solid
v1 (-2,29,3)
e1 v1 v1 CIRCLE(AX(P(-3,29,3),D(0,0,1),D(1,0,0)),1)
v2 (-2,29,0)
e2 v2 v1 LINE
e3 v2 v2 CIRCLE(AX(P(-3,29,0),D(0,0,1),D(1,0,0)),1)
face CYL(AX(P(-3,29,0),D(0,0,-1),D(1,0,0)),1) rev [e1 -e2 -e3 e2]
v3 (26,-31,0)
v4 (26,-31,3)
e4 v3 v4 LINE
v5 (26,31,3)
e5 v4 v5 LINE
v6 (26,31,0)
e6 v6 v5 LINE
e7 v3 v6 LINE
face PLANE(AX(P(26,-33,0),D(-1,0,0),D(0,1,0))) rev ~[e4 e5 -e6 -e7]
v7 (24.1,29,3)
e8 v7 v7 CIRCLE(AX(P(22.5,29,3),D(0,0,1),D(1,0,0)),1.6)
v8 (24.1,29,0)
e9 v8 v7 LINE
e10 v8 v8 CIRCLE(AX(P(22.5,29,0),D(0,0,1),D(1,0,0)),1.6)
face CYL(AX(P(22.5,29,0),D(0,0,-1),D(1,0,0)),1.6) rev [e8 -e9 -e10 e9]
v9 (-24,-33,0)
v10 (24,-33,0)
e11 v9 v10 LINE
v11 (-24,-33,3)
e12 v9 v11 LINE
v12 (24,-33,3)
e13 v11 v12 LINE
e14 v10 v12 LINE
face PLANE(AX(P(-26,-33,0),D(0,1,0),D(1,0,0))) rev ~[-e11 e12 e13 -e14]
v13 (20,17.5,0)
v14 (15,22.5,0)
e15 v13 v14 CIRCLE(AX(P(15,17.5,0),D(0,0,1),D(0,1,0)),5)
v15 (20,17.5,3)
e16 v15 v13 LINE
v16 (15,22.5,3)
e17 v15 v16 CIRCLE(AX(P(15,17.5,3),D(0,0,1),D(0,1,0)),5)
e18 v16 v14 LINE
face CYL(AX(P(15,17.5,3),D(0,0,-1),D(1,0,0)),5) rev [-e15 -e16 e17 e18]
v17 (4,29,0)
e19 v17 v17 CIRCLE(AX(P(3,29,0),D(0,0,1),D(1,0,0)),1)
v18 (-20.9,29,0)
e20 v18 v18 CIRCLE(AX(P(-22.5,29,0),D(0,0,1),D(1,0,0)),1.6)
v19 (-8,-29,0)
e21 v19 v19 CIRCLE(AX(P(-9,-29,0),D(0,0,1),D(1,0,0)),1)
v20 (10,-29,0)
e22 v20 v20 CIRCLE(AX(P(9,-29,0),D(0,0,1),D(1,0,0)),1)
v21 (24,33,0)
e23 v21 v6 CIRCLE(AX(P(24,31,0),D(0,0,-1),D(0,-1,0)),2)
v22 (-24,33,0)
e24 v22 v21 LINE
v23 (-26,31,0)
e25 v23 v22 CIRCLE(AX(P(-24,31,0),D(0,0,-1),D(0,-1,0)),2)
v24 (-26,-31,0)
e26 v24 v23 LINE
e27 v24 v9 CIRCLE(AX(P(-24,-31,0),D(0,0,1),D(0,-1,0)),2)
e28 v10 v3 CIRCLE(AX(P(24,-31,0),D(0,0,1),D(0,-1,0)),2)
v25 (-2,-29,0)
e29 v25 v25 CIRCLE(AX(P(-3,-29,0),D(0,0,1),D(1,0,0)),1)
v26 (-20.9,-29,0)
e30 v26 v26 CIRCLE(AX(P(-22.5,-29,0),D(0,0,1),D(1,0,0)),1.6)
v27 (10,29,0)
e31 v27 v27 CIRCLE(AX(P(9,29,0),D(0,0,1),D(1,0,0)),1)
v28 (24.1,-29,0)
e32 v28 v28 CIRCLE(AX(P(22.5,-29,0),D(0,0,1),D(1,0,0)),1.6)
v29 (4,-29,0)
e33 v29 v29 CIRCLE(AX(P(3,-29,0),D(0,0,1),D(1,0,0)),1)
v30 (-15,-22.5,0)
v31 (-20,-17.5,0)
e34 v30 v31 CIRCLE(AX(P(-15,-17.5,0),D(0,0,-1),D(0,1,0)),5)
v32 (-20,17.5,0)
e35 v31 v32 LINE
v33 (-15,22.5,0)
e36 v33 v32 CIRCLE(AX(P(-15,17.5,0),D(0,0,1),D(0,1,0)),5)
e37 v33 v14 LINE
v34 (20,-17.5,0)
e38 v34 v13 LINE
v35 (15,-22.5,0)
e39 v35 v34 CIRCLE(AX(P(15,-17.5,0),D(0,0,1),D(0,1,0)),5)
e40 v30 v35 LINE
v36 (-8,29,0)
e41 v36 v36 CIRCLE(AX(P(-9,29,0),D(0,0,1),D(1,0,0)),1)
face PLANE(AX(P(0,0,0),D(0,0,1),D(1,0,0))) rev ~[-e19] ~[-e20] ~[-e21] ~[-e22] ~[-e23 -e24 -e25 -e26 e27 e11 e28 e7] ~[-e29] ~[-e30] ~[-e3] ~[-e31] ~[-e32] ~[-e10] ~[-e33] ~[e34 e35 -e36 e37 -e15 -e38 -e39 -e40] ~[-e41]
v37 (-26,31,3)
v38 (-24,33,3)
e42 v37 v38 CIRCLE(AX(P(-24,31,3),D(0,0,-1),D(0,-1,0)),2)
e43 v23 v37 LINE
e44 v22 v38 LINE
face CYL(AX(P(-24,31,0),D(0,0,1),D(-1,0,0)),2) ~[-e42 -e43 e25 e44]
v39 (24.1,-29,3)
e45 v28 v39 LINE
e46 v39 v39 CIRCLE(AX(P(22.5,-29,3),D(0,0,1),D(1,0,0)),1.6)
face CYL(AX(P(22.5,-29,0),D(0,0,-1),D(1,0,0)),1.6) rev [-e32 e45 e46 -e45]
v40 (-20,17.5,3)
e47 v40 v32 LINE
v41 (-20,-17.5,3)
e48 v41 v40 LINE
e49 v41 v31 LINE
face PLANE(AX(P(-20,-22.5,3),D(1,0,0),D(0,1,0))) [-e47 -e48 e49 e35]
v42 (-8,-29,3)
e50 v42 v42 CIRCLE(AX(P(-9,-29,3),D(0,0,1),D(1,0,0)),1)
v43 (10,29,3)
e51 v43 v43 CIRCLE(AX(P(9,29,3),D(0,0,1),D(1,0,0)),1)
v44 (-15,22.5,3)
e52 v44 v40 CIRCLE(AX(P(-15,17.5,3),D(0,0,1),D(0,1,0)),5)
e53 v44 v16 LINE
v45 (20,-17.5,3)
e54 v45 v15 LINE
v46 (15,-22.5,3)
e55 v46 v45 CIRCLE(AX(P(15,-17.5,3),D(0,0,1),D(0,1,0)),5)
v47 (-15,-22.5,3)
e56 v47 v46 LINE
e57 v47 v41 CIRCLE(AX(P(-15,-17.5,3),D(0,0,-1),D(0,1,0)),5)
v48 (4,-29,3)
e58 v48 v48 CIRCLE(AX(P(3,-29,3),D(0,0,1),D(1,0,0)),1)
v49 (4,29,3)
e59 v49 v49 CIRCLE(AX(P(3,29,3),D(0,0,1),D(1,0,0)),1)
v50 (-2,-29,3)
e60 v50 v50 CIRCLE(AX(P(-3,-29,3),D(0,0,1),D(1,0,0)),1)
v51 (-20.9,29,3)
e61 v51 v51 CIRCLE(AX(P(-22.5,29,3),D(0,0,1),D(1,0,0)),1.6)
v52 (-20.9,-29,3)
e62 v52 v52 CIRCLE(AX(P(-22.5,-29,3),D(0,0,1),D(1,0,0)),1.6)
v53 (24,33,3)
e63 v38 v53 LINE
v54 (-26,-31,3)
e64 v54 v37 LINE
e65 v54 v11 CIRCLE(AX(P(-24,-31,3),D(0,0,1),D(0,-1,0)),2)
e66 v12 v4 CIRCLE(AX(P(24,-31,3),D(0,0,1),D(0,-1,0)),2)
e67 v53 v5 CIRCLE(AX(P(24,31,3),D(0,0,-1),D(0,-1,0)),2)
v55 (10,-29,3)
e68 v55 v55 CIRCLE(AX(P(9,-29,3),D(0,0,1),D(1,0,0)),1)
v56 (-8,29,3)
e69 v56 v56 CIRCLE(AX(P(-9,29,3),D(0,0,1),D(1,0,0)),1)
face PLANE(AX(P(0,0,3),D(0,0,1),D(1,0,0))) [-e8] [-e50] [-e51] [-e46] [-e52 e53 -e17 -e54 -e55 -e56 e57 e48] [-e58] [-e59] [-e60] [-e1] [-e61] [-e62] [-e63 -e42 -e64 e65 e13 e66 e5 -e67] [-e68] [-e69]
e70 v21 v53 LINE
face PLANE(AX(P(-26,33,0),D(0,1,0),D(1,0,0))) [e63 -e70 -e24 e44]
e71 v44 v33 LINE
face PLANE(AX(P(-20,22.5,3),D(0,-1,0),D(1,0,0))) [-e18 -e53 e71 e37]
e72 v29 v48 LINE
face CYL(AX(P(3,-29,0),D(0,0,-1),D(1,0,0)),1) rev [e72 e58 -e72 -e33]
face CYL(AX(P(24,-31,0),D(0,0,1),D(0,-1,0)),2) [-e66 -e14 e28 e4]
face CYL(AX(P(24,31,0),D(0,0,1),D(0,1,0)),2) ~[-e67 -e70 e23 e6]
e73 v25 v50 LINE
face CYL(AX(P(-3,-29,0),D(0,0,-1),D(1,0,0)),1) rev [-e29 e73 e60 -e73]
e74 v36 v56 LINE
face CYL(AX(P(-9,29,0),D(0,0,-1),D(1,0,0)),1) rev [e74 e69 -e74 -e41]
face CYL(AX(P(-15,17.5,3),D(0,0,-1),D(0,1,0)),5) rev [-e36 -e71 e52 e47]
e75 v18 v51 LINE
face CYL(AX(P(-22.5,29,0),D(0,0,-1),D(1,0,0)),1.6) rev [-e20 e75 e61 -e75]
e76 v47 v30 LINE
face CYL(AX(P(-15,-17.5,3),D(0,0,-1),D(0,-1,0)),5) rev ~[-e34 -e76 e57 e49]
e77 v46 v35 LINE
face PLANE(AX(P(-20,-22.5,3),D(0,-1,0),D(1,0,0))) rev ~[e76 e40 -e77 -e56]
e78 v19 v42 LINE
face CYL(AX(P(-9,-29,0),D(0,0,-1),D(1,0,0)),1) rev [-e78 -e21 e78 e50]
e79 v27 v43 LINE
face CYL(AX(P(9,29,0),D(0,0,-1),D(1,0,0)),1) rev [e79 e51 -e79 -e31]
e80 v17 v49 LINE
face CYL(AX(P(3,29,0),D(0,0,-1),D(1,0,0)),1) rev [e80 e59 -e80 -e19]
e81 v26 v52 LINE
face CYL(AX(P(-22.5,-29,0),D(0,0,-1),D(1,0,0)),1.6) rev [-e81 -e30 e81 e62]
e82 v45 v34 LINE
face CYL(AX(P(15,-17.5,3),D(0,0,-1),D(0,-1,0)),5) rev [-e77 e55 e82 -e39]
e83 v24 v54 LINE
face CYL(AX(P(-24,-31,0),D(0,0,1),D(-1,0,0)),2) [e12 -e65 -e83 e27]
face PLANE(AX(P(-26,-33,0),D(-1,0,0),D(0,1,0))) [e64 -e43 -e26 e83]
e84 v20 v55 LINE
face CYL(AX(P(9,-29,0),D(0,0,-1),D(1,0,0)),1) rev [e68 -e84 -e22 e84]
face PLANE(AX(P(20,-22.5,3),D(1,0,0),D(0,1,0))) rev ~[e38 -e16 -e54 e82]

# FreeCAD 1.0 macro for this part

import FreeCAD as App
import Part
import Sketcher

V = App.Vector


def edges_at(feature, points):
    """Names of the edges that pass closest to the given points."""
    edges = feature.Shape.Edges
    near = lambda p: min(range(len(edges)), key=lambda i: edges[i].distToShape(Part.Vertex(*p))[0])
    return sorted({f"Edge{near(p) + 1}" for p in points})

doc = App.newDocument("Part")
body = doc.addObject("PartDesign::Body", "Body")

sketch1 = body.newObject("Sketcher::SketchObject", "Sketch")
sketch1.AttachmentSupport = (doc.getObject("XY_Plane"), [""])
sketch1.MapMode = "FlatFace"
sketch1.addGeometry([
    Part.LineSegment(V(-26, 33, 0), V(-26, -33, 0)),
    Part.LineSegment(V(-26, -33, 0), V(26, -33, 0)),
    Part.LineSegment(V(26, -33, 0), V(26, 33, 0)),
    Part.LineSegment(V(26, 33, 0), V(-26, 33, 0)),
    Part.Circle(V(-22.5, -29, 0), V(0, 0, 1), 1.6),
    Part.Circle(V(-9, -29, 0), V(0, 0, 1), 1),
    Part.Circle(V(-3, -29, 0), V(0, 0, 1), 1),
    Part.Circle(V(3, -29, 0), V(0, 0, 1), 1),
    Part.Circle(V(9, -29, 0), V(0, 0, 1), 1),
    Part.Circle(V(22.5, -29, 0), V(0, 0, 1), 1.6),
    Part.Circle(V(-22.5, 29, 0), V(0, 0, 1), 1.6),
    Part.Circle(V(-9, 29, 0), V(0, 0, 1), 1),
    Part.Circle(V(-3, 29, 0), V(0, 0, 1), 1),
    Part.Circle(V(3, 29, 0), V(0, 0, 1), 1),
    Part.Circle(V(9, 29, 0), V(0, 0, 1), 1),
    Part.Circle(V(22.5, 29, 0), V(0, 0, 1), 1.6),
], False)
sketch1.addConstraint([
    Sketcher.Constraint("Coincident", 0, 2, 1, 1),
    Sketcher.Constraint("Coincident", 1, 2, 2, 1),
    Sketcher.Constraint("Coincident", 2, 2, 3, 1),
    Sketcher.Constraint("Coincident", 3, 2, 0, 1),
    Sketcher.Constraint("Vertical", 0),
    Sketcher.Constraint("Horizontal", 1),
    Sketcher.Constraint("Vertical", 2),
    Sketcher.Constraint("Horizontal", 3),
    Sketcher.Constraint("Equal", 5, 6),
    Sketcher.Constraint("Equal", 6, 7),
    Sketcher.Constraint("Equal", 7, 8),
    Sketcher.Constraint("Equal", 4, 9),
    Sketcher.Constraint("Equal", 9, 10),
    Sketcher.Constraint("Equal", 8, 11),
    Sketcher.Constraint("Equal", 11, 12),
    Sketcher.Constraint("Equal", 12, 13),
    Sketcher.Constraint("Equal", 13, 14),
    Sketcher.Constraint("Equal", 10, 15),
    Sketcher.Constraint("Symmetric", 9, 3, 10, 3, -1, 1),
    Sketcher.Constraint("Symmetric", 8, 3, 11, 3, -1, 1),
    Sketcher.Constraint("Symmetric", 7, 3, 12, 3, -1, 1),
    Sketcher.Constraint("Symmetric", 6, 3, 13, 3, -1, 1),
    Sketcher.Constraint("Symmetric", 5, 3, 14, 3, -1, 1),
    Sketcher.Constraint("Symmetric", 4, 3, 15, 3, -1, 1),
    Sketcher.Constraint("Symmetric", 0, 2, 2, 2, -1, 1),
    Sketcher.Constraint("Symmetric", 6, 3, 7, 3, -2),
    Sketcher.Constraint("Symmetric", 5, 3, 8, 3, -2),
    Sketcher.Constraint("Symmetric", 4, 3, 9, 3, -2),
    Sketcher.Constraint("Horizontal", 4, 3, 5, 3),
    Sketcher.Constraint("Horizontal", 5, 3, 6, 3),
    Sketcher.Constraint("Diameter", 5, 2.0),
    Sketcher.Constraint("Diameter", 4, 3.2),
    Sketcher.Constraint("DistanceX", 1, 1, 1, 2, 52.0),
    Sketcher.Constraint("DistanceY", 0, 2, 0, 1, 66.0),
    Sketcher.Constraint("DistanceY", 4, 3, -1, 1, 29.0),
    Sketcher.Constraint("DistanceX", 5, 3, -1, 1, 9.0),
    Sketcher.Constraint("DistanceX", 6, 3, -1, 1, 3.0),
    Sketcher.Constraint("DistanceX", 4, 3, 9, 3, 45.0),
])
pad1 = body.newObject("PartDesign::Pad", "Pad")
pad1.Profile = sketch1
pad1.Length = 3
doc.recompute()

fillet = body.newObject("PartDesign::Fillet", "Fillet")
fillet.Base = (pad1, edges_at(pad1, [
    (26, -33, 1.5),
    (-26, -33, 1.5),
    (26, 33, 1.5),
    (-26, 33, 1.5),
]))
fillet.Radius = 2

sketch2 = body.newObject("Sketcher::SketchObject", "Sketch001")
sketch2.AttachmentSupport = (doc.getObject("XY_Plane"), [""])
sketch2.MapMode = "FlatFace"
sketch2.AttachmentOffset = App.Placement(V(0, 0, 3), App.Rotation())
sketch2.addGeometry([
    Part.LineSegment(V(-20, 22, 0), V(-20, -22, 0)),
    Part.LineSegment(V(-20, -22, 0), V(20, -22, 0)),
    Part.LineSegment(V(20, -22, 0), V(20, 22, 0)),
    Part.LineSegment(V(20, 22, 0), V(-20, 22, 0)),
], False)
sketch2.addConstraint([
    Sketcher.Constraint("Coincident", 0, 2, 1, 1),
    Sketcher.Constraint("Coincident", 1, 2, 2, 1),
    Sketcher.Constraint("Coincident", 2, 2, 3, 1),
    Sketcher.Constraint("Coincident", 3, 2, 0, 1),
    Sketcher.Constraint("Vertical", 0),
    Sketcher.Constraint("Horizontal", 1),
    Sketcher.Constraint("Vertical", 2),
    Sketcher.Constraint("Horizontal", 3),
    Sketcher.Constraint("Symmetric", 0, 2, 2, 2, -1, 1),
    Sketcher.Constraint("DistanceX", 1, 1, 1, 2, 40.0),
    Sketcher.Constraint("DistanceY", 0, 2, 0, 1, 45.0),
])
pocket1 = body.newObject("PartDesign::Pocket", "Pocket")
pocket1.Profile = sketch2
pocket1.Length = 5
doc.recompute()

fillet2 = body.newObject("PartDesign::Fillet", "Fillet001")
fillet2.Base = (pocket1, edges_at(pocket1, [
    (20, -22.5, 1.5),
    (-20, 22.5, 1.5),
    (20, 22.5, 1.5),
    (-20, -22.5, 1.5),
]))
fillet2.Radius = 5

doc.recompute()
